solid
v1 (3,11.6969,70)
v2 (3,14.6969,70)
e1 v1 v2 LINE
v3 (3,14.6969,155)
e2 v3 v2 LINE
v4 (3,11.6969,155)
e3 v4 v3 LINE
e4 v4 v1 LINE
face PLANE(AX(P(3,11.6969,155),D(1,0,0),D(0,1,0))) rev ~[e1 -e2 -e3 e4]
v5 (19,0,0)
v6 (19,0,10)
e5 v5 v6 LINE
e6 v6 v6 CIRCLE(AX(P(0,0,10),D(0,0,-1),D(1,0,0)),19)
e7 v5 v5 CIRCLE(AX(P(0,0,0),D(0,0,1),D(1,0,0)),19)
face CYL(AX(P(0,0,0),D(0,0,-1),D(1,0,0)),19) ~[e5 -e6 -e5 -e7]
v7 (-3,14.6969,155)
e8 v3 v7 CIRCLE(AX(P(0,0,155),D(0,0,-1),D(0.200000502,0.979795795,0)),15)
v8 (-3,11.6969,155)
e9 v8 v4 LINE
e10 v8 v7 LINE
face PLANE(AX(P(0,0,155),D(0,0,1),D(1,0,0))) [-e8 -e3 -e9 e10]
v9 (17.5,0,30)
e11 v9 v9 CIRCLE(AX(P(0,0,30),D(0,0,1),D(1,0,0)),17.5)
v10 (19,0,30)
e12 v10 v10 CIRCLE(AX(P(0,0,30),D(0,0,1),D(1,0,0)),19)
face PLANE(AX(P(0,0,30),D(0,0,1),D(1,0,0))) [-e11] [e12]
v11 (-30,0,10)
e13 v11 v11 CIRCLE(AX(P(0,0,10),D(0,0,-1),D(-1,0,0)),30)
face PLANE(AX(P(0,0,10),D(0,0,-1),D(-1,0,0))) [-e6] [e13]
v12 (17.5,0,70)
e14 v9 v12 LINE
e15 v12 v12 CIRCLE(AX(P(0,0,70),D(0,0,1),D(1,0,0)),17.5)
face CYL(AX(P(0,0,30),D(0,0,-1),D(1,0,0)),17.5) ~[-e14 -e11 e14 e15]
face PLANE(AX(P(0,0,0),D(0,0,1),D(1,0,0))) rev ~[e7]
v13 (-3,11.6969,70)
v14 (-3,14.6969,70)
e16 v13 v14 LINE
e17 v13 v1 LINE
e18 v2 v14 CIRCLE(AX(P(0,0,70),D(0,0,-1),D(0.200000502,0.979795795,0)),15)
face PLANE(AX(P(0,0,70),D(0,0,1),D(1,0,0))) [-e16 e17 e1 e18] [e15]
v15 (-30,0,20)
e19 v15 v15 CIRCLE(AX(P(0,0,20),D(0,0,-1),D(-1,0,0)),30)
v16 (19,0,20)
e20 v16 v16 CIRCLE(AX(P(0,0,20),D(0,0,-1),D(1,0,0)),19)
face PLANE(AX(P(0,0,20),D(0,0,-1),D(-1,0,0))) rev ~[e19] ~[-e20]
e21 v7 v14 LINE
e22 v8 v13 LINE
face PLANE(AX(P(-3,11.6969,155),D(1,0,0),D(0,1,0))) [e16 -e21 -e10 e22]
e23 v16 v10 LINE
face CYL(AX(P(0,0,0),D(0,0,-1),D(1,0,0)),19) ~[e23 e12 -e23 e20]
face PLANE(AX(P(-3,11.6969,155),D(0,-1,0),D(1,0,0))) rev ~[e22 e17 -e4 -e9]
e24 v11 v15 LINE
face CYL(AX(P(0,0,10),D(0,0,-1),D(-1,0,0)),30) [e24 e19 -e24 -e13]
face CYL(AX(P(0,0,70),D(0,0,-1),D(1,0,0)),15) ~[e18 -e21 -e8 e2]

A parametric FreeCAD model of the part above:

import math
import FreeCAD as App
import Part
import Sketcher

V = App.Vector

doc = App.newDocument("Part")
params = doc.addObject("Spreadsheet::Sheet", "Params")
for row, (alias, value) in enumerate([
    ("sketch1_diameter", "38 mm"),
    ("pad1_length", "30 mm"),
    ("sketch2_diameter", "60 mm"),
    ("pad2_length", "10 mm"),
    ("sketch3_diameter", "35 mm"),
    ("pad3_length", "40 mm"),
    ("sketch4_diameter", "30 mm"),
    ("pad4_length", "85 mm"),
    ("sketch5_width", "6 mm"),
    ("sketch5_height", "3 mm"),
    ("sketch5_radius", "15 mm"),
    ("pocket1_length", "85 mm"),
], start=1):
    params.set(f"A{row}", alias)
    params.set(f"B{row}", "=" + value)
    params.setAlias(f"B{row}", alias)

body = doc.addObject("PartDesign::Body", "Body")

# Sketch on XY plane
sketch1 = body.newObject("Sketcher::SketchObject", "Sketch")
sketch1.AttachmentSupport = (doc.getObject("XY_Plane"), [""])
sketch1.MapMode = "FlatFace"
sketch1.addGeometry(Part.Circle(V(0, 0, 0), V(0, 0, 1), 19), False)
sketch1.addConstraint(Sketcher.Constraint("Coincident", 0, 3, -1, 1))
sketch1.addConstraint(Sketcher.Constraint("Diameter", 0, 38.0))
sketch1.setExpression("Constraints[1]", "Params.sketch1_diameter")
pad1 = body.newObject("PartDesign::Pad", "Pad")
pad1.Profile = sketch1
pad1.setExpression("Length", "Params.pad1_length")

# Sketch on XY plane
sketch2 = body.newObject("Sketcher::SketchObject", "Sketch001")
sketch2.AttachmentSupport = (doc.getObject("XY_Plane"), [""])
sketch2.MapMode = "FlatFace"
sketch2.AttachmentOffset = App.Placement(V(0, 0, 10), App.Rotation())
sketch2.addGeometry(Part.Circle(V(0, 0, 0), V(0, 0, 1), 30), False)
sketch2.addConstraint(Sketcher.Constraint("Coincident", 0, 3, -1, 1))
sketch2.addConstraint(Sketcher.Constraint("Diameter", 0, 60.0))
sketch2.setExpression("Constraints[1]", "Params.sketch2_diameter")
pad2 = body.newObject("PartDesign::Pad", "Pad001")
pad2.Profile = sketch2
pad2.setExpression("Length", "Params.pad2_length")

# Sketch on XY plane
sketch3 = body.newObject("Sketcher::SketchObject", "Sketch002")
sketch3.AttachmentSupport = (doc.getObject("XY_Plane"), [""])
sketch3.MapMode = "FlatFace"
sketch3.AttachmentOffset = App.Placement(V(0, 0, 30), App.Rotation())
sketch3.addGeometry(Part.Circle(V(0, 0, 0), V(0, 0, 1), 18), False)
sketch3.addConstraint(Sketcher.Constraint("Coincident", 0, 3, -1, 1))
sketch3.addConstraint(Sketcher.Constraint("Diameter", 0, 35.0))
sketch3.setExpression("Constraints[1]", "Params.sketch3_diameter")
pad3 = body.newObject("PartDesign::Pad", "Pad002")
pad3.Profile = sketch3
pad3.setExpression("Length", "Params.pad3_length")

# Sketch on XY plane
sketch4 = body.newObject("Sketcher::SketchObject", "Sketch003")
sketch4.AttachmentSupport = (doc.getObject("XY_Plane"), [""])
sketch4.MapMode = "FlatFace"
sketch4.AttachmentOffset = App.Placement(V(0, 0, 70), App.Rotation())
sketch4.addGeometry(Part.Circle(V(0, 0, 0), V(0, 0, 1), 15), False)
sketch4.addConstraint(Sketcher.Constraint("Coincident", 0, 3, -1, 1))
sketch4.addConstraint(Sketcher.Constraint("Diameter", 0, 30.0))
sketch4.setExpression("Constraints[1]", "Params.sketch4_diameter")
pad4 = body.newObject("PartDesign::Pad", "Pad003")
pad4.Profile = sketch4
pad4.setExpression("Length", "Params.pad4_length")

# Sketch on XY plane
sketch5 = body.newObject("Sketcher::SketchObject", "Sketch004")
sketch5.AttachmentSupport = (doc.getObject("XY_Plane"), [""])
sketch5.MapMode = "FlatFace"
sketch5.AttachmentOffset = App.Placement(V(0, 0, 155), App.Rotation())
sketch5.addGeometry(Part.LineSegment(V(-3, 14.7, 0), V(-3, 11.7, 0)), False)
sketch5.addGeometry(Part.LineSegment(V(-3, 11.7, 0), V(3, 11.7, 0)), False)
sketch5.addGeometry(Part.LineSegment(V(3, 11.7, 0), V(3, 14.7, 0)), False)
sketch5.addGeometry(Part.ArcOfCircle(Part.Circle(V(0, 0, 0), V(0, 0, 1), 15), math.radians(78), math.radians(102)), False)
sketch5.addConstraint(Sketcher.Constraint("Coincident", 0, 2, 1, 1))
sketch5.addConstraint(Sketcher.Constraint("Coincident", 1, 2, 2, 1))
sketch5.addConstraint(Sketcher.Constraint("Coincident", 2, 2, 3, 1))
sketch5.addConstraint(Sketcher.Constraint("Coincident", 3, 2, 0, 1))
sketch5.addConstraint(Sketcher.Constraint("Vertical", 0))
sketch5.addConstraint(Sketcher.Constraint("Horizontal", 1))
sketch5.addConstraint(Sketcher.Constraint("Vertical", 2))
sketch5.addConstraint(Sketcher.Constraint("Coincident", 3, 3, -1, 1))
sketch5.addConstraint(Sketcher.Constraint("Horizontal", 2, 2, 3, 2))
sketch5.addConstraint(Sketcher.Constraint("DistanceX", 1, 1, 1, 2, 6.0))
sketch5.addConstraint(Sketcher.Constraint("DistanceY", 0, 2, 0, 1, 3.0))
sketch5.addConstraint(Sketcher.Constraint("Radius", 3, 15.0))
sketch5.setExpression("Constraints[9]", "Params.sketch5_width")
sketch5.setExpression("Constraints[10]", "Params.sketch5_height")
sketch5.setExpression("Constraints[11]", "Params.sketch5_radius")
pocket1 = body.newObject("PartDesign::Pocket", "Pocket")
pocket1.Profile = sketch5
pocket1.setExpression("Length", "Params.pocket1_length")

doc.recompute()
